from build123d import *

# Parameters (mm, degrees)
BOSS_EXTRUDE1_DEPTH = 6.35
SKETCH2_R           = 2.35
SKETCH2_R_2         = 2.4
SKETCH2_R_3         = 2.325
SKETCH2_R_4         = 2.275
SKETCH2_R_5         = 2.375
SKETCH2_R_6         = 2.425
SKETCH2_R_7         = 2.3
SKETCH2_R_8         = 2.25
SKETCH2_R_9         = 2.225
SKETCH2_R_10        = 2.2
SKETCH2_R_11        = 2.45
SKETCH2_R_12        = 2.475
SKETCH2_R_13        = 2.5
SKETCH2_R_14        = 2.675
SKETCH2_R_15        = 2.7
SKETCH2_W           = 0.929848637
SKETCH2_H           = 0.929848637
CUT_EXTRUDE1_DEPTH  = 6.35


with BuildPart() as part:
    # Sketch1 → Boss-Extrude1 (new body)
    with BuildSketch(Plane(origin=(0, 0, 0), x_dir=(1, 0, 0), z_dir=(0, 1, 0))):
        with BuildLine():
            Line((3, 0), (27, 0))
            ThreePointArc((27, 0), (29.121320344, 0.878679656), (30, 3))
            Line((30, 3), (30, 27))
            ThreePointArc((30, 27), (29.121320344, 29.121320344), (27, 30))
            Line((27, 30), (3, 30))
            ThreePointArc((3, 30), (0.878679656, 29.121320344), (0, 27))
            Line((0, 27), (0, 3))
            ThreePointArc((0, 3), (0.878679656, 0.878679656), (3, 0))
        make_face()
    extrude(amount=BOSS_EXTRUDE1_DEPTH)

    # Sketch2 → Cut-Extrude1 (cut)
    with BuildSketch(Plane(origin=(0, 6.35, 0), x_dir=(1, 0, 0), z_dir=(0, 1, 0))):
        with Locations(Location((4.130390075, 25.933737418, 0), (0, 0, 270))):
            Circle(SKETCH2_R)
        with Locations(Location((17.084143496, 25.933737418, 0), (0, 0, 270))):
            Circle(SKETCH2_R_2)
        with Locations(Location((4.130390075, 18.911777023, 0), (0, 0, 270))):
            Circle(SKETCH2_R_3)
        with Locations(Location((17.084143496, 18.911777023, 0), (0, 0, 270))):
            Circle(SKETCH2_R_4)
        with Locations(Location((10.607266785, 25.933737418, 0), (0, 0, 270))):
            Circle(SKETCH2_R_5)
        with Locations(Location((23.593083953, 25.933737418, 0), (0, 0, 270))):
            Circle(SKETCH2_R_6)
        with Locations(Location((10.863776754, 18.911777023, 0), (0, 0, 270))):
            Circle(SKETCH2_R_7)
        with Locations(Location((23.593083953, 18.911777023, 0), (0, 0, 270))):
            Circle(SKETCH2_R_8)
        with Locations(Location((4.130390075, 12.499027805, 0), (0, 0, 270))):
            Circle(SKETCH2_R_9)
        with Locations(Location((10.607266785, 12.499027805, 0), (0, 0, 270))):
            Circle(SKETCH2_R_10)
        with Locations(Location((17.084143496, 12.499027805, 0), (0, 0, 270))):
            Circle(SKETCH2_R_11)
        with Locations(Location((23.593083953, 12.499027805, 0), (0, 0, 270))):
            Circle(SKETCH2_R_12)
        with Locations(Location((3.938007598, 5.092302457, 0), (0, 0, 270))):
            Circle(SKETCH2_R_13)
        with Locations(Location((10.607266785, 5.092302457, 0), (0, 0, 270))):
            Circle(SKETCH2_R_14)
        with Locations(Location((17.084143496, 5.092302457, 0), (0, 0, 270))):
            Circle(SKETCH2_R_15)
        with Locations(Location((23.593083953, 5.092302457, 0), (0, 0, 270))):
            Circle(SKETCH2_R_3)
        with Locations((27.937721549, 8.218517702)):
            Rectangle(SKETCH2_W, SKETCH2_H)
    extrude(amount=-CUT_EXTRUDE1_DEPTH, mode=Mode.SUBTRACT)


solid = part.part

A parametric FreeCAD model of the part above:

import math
import FreeCAD as App
import Part
import Sketcher
from FreeCAD import Vector

doc = App.newDocument("Part")
body = doc.addObject("PartDesign::Body", "Body")

sketch1 = doc.addObject("Sketcher::SketchObject", "Sketch")
body.addObject(sketch1)
sketch1.AttachmentSupport = (doc.XZ_Plane, [""])
sketch1.MapMode = "FlatFace"
sketch1.addGeometry([
    Part.LineSegment(Vector(3, 0, 0), Vector(27, 0, 0)),
    Part.ArcOfCircle(Part.Circle(Vector(27, -3, 0), Vector(0, 0, 1), 3), math.radians(0), math.radians(90)),
    Part.LineSegment(Vector(30, -3, 0), Vector(30, -27, 0)),
    Part.ArcOfCircle(Part.Circle(Vector(27, -27, 0), Vector(0, 0, 1), 3), math.radians(-90), math.radians(0)),
    Part.LineSegment(Vector(27, -30, 0), Vector(3, -30, 0)),
    Part.ArcOfCircle(Part.Circle(Vector(3, -27, 0), Vector(0, 0, 1), 3), math.radians(180), math.radians(270)),
    Part.LineSegment(Vector(0, -27, 0), Vector(0, -3, 0)),
    Part.ArcOfCircle(Part.Circle(Vector(3, -3, 0), Vector(0, 0, 1), 3), math.radians(90), math.radians(180)),
], False)
sketch1.addConstraint([
    Sketcher.Constraint("Tangent", 0, 2, 1, 2),
    Sketcher.Constraint("Tangent", 1, 1, 2, 1),
    Sketcher.Constraint("Tangent", 2, 2, 3, 2),
    Sketcher.Constraint("Tangent", 3, 1, 4, 1),
    Sketcher.Constraint("Tangent", 4, 2, 5, 2),
    Sketcher.Constraint("Tangent", 5, 1, 6, 1),
    Sketcher.Constraint("Tangent", 6, 2, 7, 2),
    Sketcher.Constraint("Tangent", 7, 1, 0, 1),
    Sketcher.Constraint("Horizontal", 0),
    Sketcher.Constraint("Vertical", 2),
    Sketcher.Constraint("Horizontal", 4),
    Sketcher.Constraint("Vertical", 6),
    Sketcher.Constraint("Equal", 1, 3),
    Sketcher.Constraint("Equal", 3, 5),
    Sketcher.Constraint("Equal", 5, 7),
    Sketcher.Constraint("PointOnObject", 0, 2, -1),
    Sketcher.Constraint("PointOnObject", 5, 1, -2),
    Sketcher.Constraint("Equal", 4, 2),
    Sketcher.Constraint("Radius", 1, 3.0),
    Sketcher.Constraint("DistanceX", 0, 1, 0, 2, 24.0),
])
pad1 = doc.addObject("PartDesign::Pad", "Pad")
body.addObject(pad1)
pad1.Profile = sketch1
pad1.Length = 6.35
pad1.Reversed = True

sketch2 = doc.addObject("Sketcher::SketchObject", "Sketch001")
body.addObject(sketch2)
sketch2.AttachmentSupport = (doc.XZ_Plane, [""])
sketch2.MapMode = "FlatFace"
sketch2.AttachmentOffset = App.Placement(Vector(0, 0, -6.35), App.Rotation())
sketch2.addGeometry([
    Part.Circle(Vector(4.13039, -25.933737, 0), Vector(0, 0, 1), 2.35),
    Part.Circle(Vector(17.084143, -25.933737, 0), Vector(0, 0, 1), 2.4),
    Part.Circle(Vector(4.13039, -18.911777, 0), Vector(0, 0, 1), 2.325),
    Part.Circle(Vector(17.084143, -18.911777, 0), Vector(0, 0, 1), 2.275),
    Part.Circle(Vector(10.607267, -25.933737, 0), Vector(0, 0, 1), 2.375),
    Part.Circle(Vector(23.593084, -25.933737, 0), Vector(0, 0, 1), 2.425),
    Part.Circle(Vector(10.863777, -18.911777, 0), Vector(0, 0, 1), 2.3),
    Part.Circle(Vector(23.593084, -18.911777, 0), Vector(0, 0, 1), 2.25),
    Part.Circle(Vector(4.13039, -12.499028, 0), Vector(0, 0, 1), 2.225),
    Part.Circle(Vector(10.607267, -12.499028, 0), Vector(0, 0, 1), 2.2),
    Part.Circle(Vector(17.084143, -12.499028, 0), Vector(0, 0, 1), 2.45),
    Part.Circle(Vector(23.593084, -12.499028, 0), Vector(0, 0, 1), 2.475),
    Part.Circle(Vector(3.938008, -5.092302, 0), Vector(0, 0, 1), 2.5),
    Part.Circle(Vector(10.607267, -5.092302, 0), Vector(0, 0, 1), 2.675),
    Part.Circle(Vector(17.084143, -5.092302, 0), Vector(0, 0, 1), 2.7),
    Part.Circle(Vector(23.593084, -5.092302, 0), Vector(0, 0, 1), 2.325),
    Part.LineSegment(Vector(27.472797, -8.683442, 0), Vector(27.472797, -7.753593, 0)),
    Part.LineSegment(Vector(27.472797, -7.753593, 0), Vector(28.402646, -7.753593, 0)),
    Part.LineSegment(Vector(28.402646, -7.753593, 0), Vector(28.402646, -8.683442, 0)),
    Part.LineSegment(Vector(28.402646, -8.683442, 0), Vector(27.472797, -8.683442, 0)),
], False)
sketch2.addConstraint([
    Sketcher.Constraint("Coincident", 16, 2, 17, 1),
    Sketcher.Constraint("Coincident", 17, 2, 18, 1),
    Sketcher.Constraint("Coincident", 18, 2, 19, 1),
    Sketcher.Constraint("Coincident", 19, 2, 16, 1),
    Sketcher.Constraint("Vertical", 16),
    Sketcher.Constraint("Horizontal", 17),
    Sketcher.Constraint("Vertical", 18),
    Sketcher.Constraint("Horizontal", 19),
    Sketcher.Constraint("Equal", 2, 15),
    Sketcher.Constraint("Horizontal", 0, 3, 1, 3),
    Sketcher.Constraint("Horizontal", 2, 3, 3, 3),
    Sketcher.Constraint("Horizontal", 1, 3, 4, 3),
    Sketcher.Constraint("Horizontal", 4, 3, 5, 3),
    Sketcher.Constraint("Horizontal", 3, 3, 6, 3),
    Sketcher.Constraint("Horizontal", 6, 3, 7, 3),
    Sketcher.Constraint("Horizontal", 8, 3, 9, 3),
    Sketcher.Constraint("Horizontal", 9, 3, 10, 3),
    Sketcher.Constraint("Horizontal", 10, 3, 11, 3),
    Sketcher.Constraint("Horizontal", 12, 3, 13, 3),
    Sketcher.Constraint("Horizontal", 13, 3, 14, 3),
    Sketcher.Constraint("Horizontal", 14, 3, 15, 3),
    Sketcher.Constraint("Vertical", 0, 3, 2, 3),
    Sketcher.Constraint("Vertical", 1, 3, 3, 3),
    Sketcher.Constraint("Vertical", 5, 3, 7, 3),
    Sketcher.Constraint("Vertical", 2, 3, 8, 3),
    Sketcher.Constraint("Vertical", 4, 3, 9, 3),
    Sketcher.Constraint("Vertical", 3, 3, 10, 3),
    Sketcher.Constraint("Vertical", 7, 3, 11, 3),
    Sketcher.Constraint("Vertical", 9, 3, 13, 3),
    Sketcher.Constraint("Vertical", 10, 3, 14, 3),
    Sketcher.Constraint("Vertical", 11, 3, 15, 3),
    Sketcher.Constraint("Equal", 19, 16),
    Sketcher.Constraint("Diameter", 12, 5.0),
    Sketcher.Constraint("Diameter", 0, 4.7),
    Sketcher.Constraint("Diameter", 1, 4.8),
    Sketcher.Constraint("Diameter", 6, 4.6),
    Sketcher.Constraint("Diameter", 7, 4.5),
    Sketcher.Constraint("Diameter", 9, 4.4),
    Sketcher.Constraint("Diameter", 10, 4.9),
    Sketcher.Constraint("Diameter", 14, 5.4),
    Sketcher.Constraint("Diameter", 2, 4.65),
    Sketcher.Constraint("Diameter", 3, 4.55),
    Sketcher.Constraint("Diameter", 4, 4.75),
    Sketcher.Constraint("Diameter", 5, 4.85),
    Sketcher.Constraint("Diameter", 8, 4.45),
    Sketcher.Constraint("Diameter", 11, 4.95),
    Sketcher.Constraint("Diameter", 13, 5.35),
    Sketcher.Constraint("DistanceX", 17, 1, 17, 2, 0.929849),
    Sketcher.Constraint("DistanceX", -1, 1, 0, 3, 4.13039),
    Sketcher.Constraint("DistanceY", 0, 3, 2, 3, 7.02196),
    Sketcher.Constraint("DistanceX", 1, 3, 5, 3, 6.50894),
    Sketcher.Constraint("DistanceX", 4, 3, 6, 3, 0.25651),
    Sketcher.Constraint("DistanceY", 2, 3, 8, 3, 6.412749),
    Sketcher.Constraint("DistanceX", 12, 3, 9, 3, 6.669259),
    Sketcher.Constraint("DistanceY", 16, 2, 15, 3, 2.661291),
    Sketcher.Constraint("DistanceX", 15, 3, 17, 2, 4.809562),
    Sketcher.Constraint("DistanceY", 0, 3, -1, 1, 25.933737),
    Sketcher.Constraint("DistanceX", -1, 1, 1, 3, 17.084143),
    Sketcher.Constraint("DistanceX", -1, 1, 4, 3, 10.607267),
    Sketcher.Constraint("DistanceY", 12, 3, -1, 1, 5.092302),
])
pocket1 = doc.addObject("PartDesign::Pocket", "Pocket")
body.addObject(pocket1)
pocket1.Profile = sketch2
pocket1.Length = 6.35
pocket1.Reversed = True

doc.recompute()
